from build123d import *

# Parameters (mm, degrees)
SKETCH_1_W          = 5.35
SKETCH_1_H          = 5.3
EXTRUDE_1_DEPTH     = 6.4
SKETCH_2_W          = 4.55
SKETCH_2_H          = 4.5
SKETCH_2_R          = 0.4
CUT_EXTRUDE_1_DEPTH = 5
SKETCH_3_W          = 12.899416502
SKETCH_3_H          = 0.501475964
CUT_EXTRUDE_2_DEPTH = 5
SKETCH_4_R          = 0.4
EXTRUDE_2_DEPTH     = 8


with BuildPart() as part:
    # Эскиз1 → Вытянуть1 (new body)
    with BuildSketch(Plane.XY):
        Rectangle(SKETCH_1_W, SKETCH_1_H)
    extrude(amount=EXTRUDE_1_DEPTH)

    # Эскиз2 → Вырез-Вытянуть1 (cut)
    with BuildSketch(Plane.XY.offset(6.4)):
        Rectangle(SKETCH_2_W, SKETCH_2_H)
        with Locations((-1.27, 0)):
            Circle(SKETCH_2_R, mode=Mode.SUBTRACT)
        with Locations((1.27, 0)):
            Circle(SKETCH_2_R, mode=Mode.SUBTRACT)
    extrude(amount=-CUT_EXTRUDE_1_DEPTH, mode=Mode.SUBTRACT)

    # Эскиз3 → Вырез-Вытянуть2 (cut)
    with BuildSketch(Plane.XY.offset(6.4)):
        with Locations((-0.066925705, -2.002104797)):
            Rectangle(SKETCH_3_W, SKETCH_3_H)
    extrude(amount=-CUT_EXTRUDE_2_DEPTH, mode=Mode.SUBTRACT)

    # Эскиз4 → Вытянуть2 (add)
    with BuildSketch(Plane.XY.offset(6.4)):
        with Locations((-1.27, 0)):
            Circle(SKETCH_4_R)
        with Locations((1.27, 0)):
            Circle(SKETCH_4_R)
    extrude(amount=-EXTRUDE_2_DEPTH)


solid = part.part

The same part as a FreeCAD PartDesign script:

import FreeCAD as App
import Part
import Sketcher
from FreeCAD import Vector

doc = App.newDocument("Part")
body = doc.addObject("PartDesign::Body", "Body")

# Sketch on XY plane
sketch1 = body.newObject("Sketcher::SketchObject", "Sketch")
sketch1.AttachmentSupport = (doc.getObject("XY_Plane"), [""])
sketch1.MapMode = "FlatFace"
sketch1.addGeometry([
    Part.LineSegment(Vector(-3, 3, 0), Vector(-3, -3, 0)),
    Part.LineSegment(Vector(-3, -3, 0), Vector(3, -3, 0)),
    Part.LineSegment(Vector(3, -3, 0), Vector(3, 3, 0)),
    Part.LineSegment(Vector(3, 3, 0), Vector(-3, 3, 0)),
], False)
sketch1.addConstraint([
    Sketcher.Constraint("Coincident", 0, 2, 1, 1),
    Sketcher.Constraint("Coincident", 1, 2, 2, 1),
    Sketcher.Constraint("Coincident", 2, 2, 3, 1),
    Sketcher.Constraint("Coincident", 3, 2, 0, 1),
    Sketcher.Constraint("Vertical", 0),
    Sketcher.Constraint("Horizontal", 1),
    Sketcher.Constraint("Vertical", 2),
    Sketcher.Constraint("Horizontal", 3),
    Sketcher.Constraint("Symmetric", 0, 2, 2, 2, -1, 1),
    Sketcher.Constraint("DistanceY", 0, 2, 0, 1, 5.3),
    Sketcher.Constraint("DistanceX", 1, 1, 1, 2, 5.35),
])
pad1 = body.newObject("PartDesign::Pad", "Pad")
pad1.Profile = sketch1
pad1.Length = 6.4

# Sketch on XY plane
sketch2 = body.newObject("Sketcher::SketchObject", "Sketch001")
sketch2.AttachmentSupport = (doc.getObject("XY_Plane"), [""])
sketch2.MapMode = "FlatFace"
sketch2.AttachmentOffset = App.Placement(Vector(0, 0, 6.4), App.Rotation())
sketch2.addGeometry([
    Part.LineSegment(Vector(-2.27, 2.25, 0), Vector(-2.27, -2.25, 0)),  # 0
    Part.LineSegment(Vector(-2.27, -2.25, 0), Vector(2.27, -2.25, 0)),  # 1
    Part.LineSegment(Vector(2.27, -2.25, 0), Vector(2.27, 2.25, 0)),  # 2
    Part.LineSegment(Vector(2.27, 2.25, 0), Vector(-2.27, 2.25, 0)),  # 3
    Part.Circle(Vector(-1.27, 0, 0), Vector(0, 0, 1), 0.4),  # 4
    Part.Circle(Vector(1.27, 0, 0), Vector(0, 0, 1), 0.4),  # 5
], False)
sketch2.addConstraint([
    Sketcher.Constraint("Coincident", 0, 2, 1, 1),
    Sketcher.Constraint("Coincident", 1, 2, 2, 1),
    Sketcher.Constraint("Coincident", 2, 2, 3, 1),
    Sketcher.Constraint("Coincident", 3, 2, 0, 1),
    Sketcher.Constraint("Vertical", 0),
    Sketcher.Constraint("Horizontal", 1),
    Sketcher.Constraint("Vertical", 2),
    Sketcher.Constraint("Horizontal", 3),
    Sketcher.Constraint("Equal", 4, 5),
    Sketcher.Constraint("Symmetric", 4, 3, 5, 3, -1, 1),
    Sketcher.Constraint("Symmetric", 0, 2, 2, 2, -1, 1),
    Sketcher.Constraint("PointOnObject", 4, 3, -1),
    Sketcher.Constraint("Diameter", 4, 0.8),
    Sketcher.Constraint("DistanceY", 0, 2, 0, 1, 4.5),
    Sketcher.Constraint("DistanceX", 1, 1, 1, 2, 4.55),
    Sketcher.Constraint("DistanceX", 4, 3, -1, 1, 1.27),
])
pocket1 = body.newObject("PartDesign::Pocket", "Pocket")
pocket1.Profile = sketch2
pocket1.Length = 5

# Sketch on XY plane
sketch3 = body.newObject("Sketcher::SketchObject", "Sketch002")
sketch3.AttachmentSupport = (doc.getObject("XY_Plane"), [""])
sketch3.MapMode = "FlatFace"
sketch3.AttachmentOffset = App.Placement(Vector(0, 0, 6.4), App.Rotation())
sketch3.addGeometry([
    Part.LineSegment(Vector(-6.5, -1.8, 0), Vector(-6.5, -2.3, 0)),
    Part.LineSegment(Vector(-6.5, -2.3, 0), Vector(6.4, -2.3, 0)),
    Part.LineSegment(Vector(6.4, -2.3, 0), Vector(6.4, -1.8, 0)),
    Part.LineSegment(Vector(6.4, -1.8, 0), Vector(-6.5, -1.8, 0)),
], False)
sketch3.addConstraint([
    Sketcher.Constraint("Coincident", 0, 2, 1, 1),
    Sketcher.Constraint("Coincident", 1, 2, 2, 1),
    Sketcher.Constraint("Coincident", 2, 2, 3, 1),
    Sketcher.Constraint("Coincident", 3, 2, 0, 1),
    Sketcher.Constraint("Vertical", 0),
    Sketcher.Constraint("Horizontal", 1),
    Sketcher.Constraint("Vertical", 2),
    Sketcher.Constraint("Horizontal", 3),
    Sketcher.Constraint("DistanceX", 1, 1, 1, 2, 12.899417),
    Sketcher.Constraint("DistanceY", 0, 2, 0, 1, 0.501476),
    Sketcher.Constraint("DistanceX", 0, 2, -1, 1, 6.516634),
    Sketcher.Constraint("DistanceY", 0, 2, -1, 1, 2.252843),
])
pocket2 = body.newObject("PartDesign::Pocket", "Pocket001")
pocket2.Profile = sketch3
pocket2.Length = 5

# Sketch on XY plane
sketch4 = body.newObject("Sketcher::SketchObject", "Sketch003")
sketch4.AttachmentSupport = (doc.getObject("XY_Plane"), [""])
sketch4.MapMode = "FlatFace"
sketch4.AttachmentOffset = App.Placement(Vector(0, 0, 6.4), App.Rotation())
sketch4.addGeometry([
    Part.Circle(Vector(-1.27, 0, 0), Vector(0, 0, 1), 0.4),
    Part.Circle(Vector(1.27, 0, 0), Vector(0, 0, 1), 0.4),
], False)
sketch4.addConstraint([
    Sketcher.Constraint("Equal", 0, 1),
    Sketcher.Constraint("Symmetric", 0, 3, 1, 3, -1, 1),
    Sketcher.Constraint("PointOnObject", 0, 3, -1),
    Sketcher.Constraint("Diameter", 0, 0.8),
    Sketcher.Constraint("DistanceX", 0, 3, -1, 1, 1.27),
])
pad2 = body.newObject("PartDesign::Pad", "Pad001")
pad2.Profile = sketch4
pad2.Length = 8
pad2.Reversed = True

doc.recompute()
